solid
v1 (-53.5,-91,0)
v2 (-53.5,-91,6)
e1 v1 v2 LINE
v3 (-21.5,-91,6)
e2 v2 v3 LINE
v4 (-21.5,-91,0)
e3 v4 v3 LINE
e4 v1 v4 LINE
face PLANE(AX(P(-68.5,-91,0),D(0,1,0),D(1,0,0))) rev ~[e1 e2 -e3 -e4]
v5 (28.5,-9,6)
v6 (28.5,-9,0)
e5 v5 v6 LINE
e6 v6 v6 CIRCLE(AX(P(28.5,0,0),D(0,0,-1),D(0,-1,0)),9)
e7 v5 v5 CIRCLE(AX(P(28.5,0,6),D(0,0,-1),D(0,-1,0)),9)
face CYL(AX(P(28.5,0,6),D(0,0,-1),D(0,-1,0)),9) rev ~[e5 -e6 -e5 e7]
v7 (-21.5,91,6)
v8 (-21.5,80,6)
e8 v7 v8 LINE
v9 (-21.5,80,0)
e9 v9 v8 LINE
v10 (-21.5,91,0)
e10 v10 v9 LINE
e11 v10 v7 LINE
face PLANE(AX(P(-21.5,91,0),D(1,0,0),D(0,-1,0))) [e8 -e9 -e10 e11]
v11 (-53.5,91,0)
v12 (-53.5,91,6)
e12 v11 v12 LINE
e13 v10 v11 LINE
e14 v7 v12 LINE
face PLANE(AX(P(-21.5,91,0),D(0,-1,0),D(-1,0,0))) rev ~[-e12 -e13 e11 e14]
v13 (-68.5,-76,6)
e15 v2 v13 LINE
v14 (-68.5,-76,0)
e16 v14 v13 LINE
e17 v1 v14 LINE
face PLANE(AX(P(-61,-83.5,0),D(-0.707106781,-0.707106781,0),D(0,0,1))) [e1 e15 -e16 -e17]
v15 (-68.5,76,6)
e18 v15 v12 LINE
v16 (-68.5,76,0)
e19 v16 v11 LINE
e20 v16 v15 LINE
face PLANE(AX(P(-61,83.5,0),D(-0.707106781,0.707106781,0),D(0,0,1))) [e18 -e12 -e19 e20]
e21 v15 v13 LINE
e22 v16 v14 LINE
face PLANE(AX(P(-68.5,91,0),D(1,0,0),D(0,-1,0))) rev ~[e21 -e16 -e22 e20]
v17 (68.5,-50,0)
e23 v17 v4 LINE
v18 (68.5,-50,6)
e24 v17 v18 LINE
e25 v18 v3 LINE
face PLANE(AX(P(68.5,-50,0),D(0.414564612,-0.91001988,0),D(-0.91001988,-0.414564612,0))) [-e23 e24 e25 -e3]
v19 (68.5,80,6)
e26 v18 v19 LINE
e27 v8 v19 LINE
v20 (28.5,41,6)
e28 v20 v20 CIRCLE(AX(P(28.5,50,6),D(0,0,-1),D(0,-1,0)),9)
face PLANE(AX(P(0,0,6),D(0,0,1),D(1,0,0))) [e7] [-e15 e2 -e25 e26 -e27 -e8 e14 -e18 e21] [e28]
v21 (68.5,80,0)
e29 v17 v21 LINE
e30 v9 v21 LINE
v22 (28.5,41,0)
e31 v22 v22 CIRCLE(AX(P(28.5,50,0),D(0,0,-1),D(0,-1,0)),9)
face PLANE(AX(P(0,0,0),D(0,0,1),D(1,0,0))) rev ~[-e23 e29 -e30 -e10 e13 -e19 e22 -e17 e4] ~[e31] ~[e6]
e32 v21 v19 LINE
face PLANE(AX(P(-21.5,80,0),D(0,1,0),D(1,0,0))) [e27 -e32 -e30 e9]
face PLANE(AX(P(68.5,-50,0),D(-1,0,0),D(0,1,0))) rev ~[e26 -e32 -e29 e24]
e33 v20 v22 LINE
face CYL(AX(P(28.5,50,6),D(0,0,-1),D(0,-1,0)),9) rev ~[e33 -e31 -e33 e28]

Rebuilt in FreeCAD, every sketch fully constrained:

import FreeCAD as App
import Part
import Sketcher
from FreeCAD import Vector


def edges_at(feature, points):
    """Names of the edges that pass closest to the given points."""
    edges = feature.Shape.Edges
    near = lambda p: min(range(len(edges)), key=lambda i: edges[i].distToShape(Part.Vertex(*p))[0])
    return sorted({f"Edge{near(p) + 1}" for p in points})

doc = App.newDocument("Part")
body = doc.addObject("PartDesign::Body", "Body")

sketch1 = body.newObject("Sketcher::SketchObject", "Sketch")
sketch1.AttachmentSupport = (doc.getObject("XY_Plane"), [""])
sketch1.MapMode = "FlatFace"
sketch1.addGeometry([
    Part.LineSegment(Vector(-22, 80, 0), Vector(-22, 91, 0)),
    Part.LineSegment(Vector(-22, 91, 0), Vector(-68, 91, 0)),
    Part.LineSegment(Vector(-68, 91, 0), Vector(-68, -91, 0)),
    Part.LineSegment(Vector(-68, -91, 0), Vector(-22, -91, 0)),
    Part.LineSegment(Vector(-22, -91, 0), Vector(68, -50, 0)),
    Part.LineSegment(Vector(68, -50, 0), Vector(68, 80, 0)),
    Part.LineSegment(Vector(68, 80, 0), Vector(-22, 80, 0)),
], False)
sketch1.addConstraint([
    Sketcher.Constraint("Coincident", 0, 2, 1, 1),
    Sketcher.Constraint("Coincident", 1, 2, 2, 1),
    Sketcher.Constraint("Coincident", 2, 2, 3, 1),
    Sketcher.Constraint("Coincident", 3, 2, 4, 1),
    Sketcher.Constraint("Coincident", 4, 2, 5, 1),
    Sketcher.Constraint("Coincident", 5, 2, 6, 1),
    Sketcher.Constraint("Coincident", 6, 2, 0, 1),
    Sketcher.Constraint("Vertical", 0),
    Sketcher.Constraint("Horizontal", 1),
    Sketcher.Constraint("Vertical", 2),
    Sketcher.Constraint("Horizontal", 3),
    Sketcher.Constraint("Vertical", 5),
    Sketcher.Constraint("Horizontal", 6),
    Sketcher.Constraint("Symmetric", 0, 2, 3, 2, -1),
    Sketcher.Constraint("DistanceX", 1, 2, 1, 1, 47.0),
    Sketcher.Constraint("DistanceY", 2, 2, 2, 1, 182.0),
    Sketcher.Constraint("DistanceX", 6, 2, 6, 1, 90.0),
    Sketcher.Constraint("DistanceY", 0, 1, 0, 2, 11.0),
    Sketcher.Constraint("DistanceY", 5, 1, 5, 2, 130.0),
    Sketcher.Constraint("DistanceX", 0, 2, -1, 1, 21.5),
])
pad1 = body.newObject("PartDesign::Pad", "Pad")
pad1.Profile = sketch1
pad1.Length = 6
doc.recompute()

chamfer = body.newObject("PartDesign::Chamfer", "Chamfer")
chamfer.Base = (pad1, edges_at(pad1, [(-68.5, -91, 3), (-68.5, 91, 3)]))
chamfer.Size = 15

sketch2 = body.newObject("Sketcher::SketchObject", "Sketch001")
sketch2.AttachmentSupport = (doc.getObject("XY_Plane"), [""])
sketch2.MapMode = "FlatFace"
sketch2.AttachmentOffset = App.Placement(Vector(0, 0, 6), App.Rotation())
sketch2.addGeometry([
    Part.Circle(Vector(28, 50, 0), Vector(0, 0, 1), 9),
    Part.Circle(Vector(28, 0, 0), Vector(0, 0, 1), 9),
], False)
sketch2.addConstraint([
    Sketcher.Constraint("Equal", 0, 1),
    Sketcher.Constraint("PointOnObject", 1, 3, -1),
    Sketcher.Constraint("Vertical", 0, 3, 1, 3),
    Sketcher.Constraint("Diameter", 0, 18.0),
    Sketcher.Constraint("DistanceY", -1, 1, 0, 3, 50.0),
    Sketcher.Constraint("DistanceX", -1, 1, 0, 3, 28.5),
])
doc.recompute()
hole = body.newObject("PartDesign::Hole", "Hole")
hole.Profile = sketch2
hole.ThreadType = "None"
hole.Diameter = 18
hole.DepthType = "ThroughAll"

doc.recompute()
